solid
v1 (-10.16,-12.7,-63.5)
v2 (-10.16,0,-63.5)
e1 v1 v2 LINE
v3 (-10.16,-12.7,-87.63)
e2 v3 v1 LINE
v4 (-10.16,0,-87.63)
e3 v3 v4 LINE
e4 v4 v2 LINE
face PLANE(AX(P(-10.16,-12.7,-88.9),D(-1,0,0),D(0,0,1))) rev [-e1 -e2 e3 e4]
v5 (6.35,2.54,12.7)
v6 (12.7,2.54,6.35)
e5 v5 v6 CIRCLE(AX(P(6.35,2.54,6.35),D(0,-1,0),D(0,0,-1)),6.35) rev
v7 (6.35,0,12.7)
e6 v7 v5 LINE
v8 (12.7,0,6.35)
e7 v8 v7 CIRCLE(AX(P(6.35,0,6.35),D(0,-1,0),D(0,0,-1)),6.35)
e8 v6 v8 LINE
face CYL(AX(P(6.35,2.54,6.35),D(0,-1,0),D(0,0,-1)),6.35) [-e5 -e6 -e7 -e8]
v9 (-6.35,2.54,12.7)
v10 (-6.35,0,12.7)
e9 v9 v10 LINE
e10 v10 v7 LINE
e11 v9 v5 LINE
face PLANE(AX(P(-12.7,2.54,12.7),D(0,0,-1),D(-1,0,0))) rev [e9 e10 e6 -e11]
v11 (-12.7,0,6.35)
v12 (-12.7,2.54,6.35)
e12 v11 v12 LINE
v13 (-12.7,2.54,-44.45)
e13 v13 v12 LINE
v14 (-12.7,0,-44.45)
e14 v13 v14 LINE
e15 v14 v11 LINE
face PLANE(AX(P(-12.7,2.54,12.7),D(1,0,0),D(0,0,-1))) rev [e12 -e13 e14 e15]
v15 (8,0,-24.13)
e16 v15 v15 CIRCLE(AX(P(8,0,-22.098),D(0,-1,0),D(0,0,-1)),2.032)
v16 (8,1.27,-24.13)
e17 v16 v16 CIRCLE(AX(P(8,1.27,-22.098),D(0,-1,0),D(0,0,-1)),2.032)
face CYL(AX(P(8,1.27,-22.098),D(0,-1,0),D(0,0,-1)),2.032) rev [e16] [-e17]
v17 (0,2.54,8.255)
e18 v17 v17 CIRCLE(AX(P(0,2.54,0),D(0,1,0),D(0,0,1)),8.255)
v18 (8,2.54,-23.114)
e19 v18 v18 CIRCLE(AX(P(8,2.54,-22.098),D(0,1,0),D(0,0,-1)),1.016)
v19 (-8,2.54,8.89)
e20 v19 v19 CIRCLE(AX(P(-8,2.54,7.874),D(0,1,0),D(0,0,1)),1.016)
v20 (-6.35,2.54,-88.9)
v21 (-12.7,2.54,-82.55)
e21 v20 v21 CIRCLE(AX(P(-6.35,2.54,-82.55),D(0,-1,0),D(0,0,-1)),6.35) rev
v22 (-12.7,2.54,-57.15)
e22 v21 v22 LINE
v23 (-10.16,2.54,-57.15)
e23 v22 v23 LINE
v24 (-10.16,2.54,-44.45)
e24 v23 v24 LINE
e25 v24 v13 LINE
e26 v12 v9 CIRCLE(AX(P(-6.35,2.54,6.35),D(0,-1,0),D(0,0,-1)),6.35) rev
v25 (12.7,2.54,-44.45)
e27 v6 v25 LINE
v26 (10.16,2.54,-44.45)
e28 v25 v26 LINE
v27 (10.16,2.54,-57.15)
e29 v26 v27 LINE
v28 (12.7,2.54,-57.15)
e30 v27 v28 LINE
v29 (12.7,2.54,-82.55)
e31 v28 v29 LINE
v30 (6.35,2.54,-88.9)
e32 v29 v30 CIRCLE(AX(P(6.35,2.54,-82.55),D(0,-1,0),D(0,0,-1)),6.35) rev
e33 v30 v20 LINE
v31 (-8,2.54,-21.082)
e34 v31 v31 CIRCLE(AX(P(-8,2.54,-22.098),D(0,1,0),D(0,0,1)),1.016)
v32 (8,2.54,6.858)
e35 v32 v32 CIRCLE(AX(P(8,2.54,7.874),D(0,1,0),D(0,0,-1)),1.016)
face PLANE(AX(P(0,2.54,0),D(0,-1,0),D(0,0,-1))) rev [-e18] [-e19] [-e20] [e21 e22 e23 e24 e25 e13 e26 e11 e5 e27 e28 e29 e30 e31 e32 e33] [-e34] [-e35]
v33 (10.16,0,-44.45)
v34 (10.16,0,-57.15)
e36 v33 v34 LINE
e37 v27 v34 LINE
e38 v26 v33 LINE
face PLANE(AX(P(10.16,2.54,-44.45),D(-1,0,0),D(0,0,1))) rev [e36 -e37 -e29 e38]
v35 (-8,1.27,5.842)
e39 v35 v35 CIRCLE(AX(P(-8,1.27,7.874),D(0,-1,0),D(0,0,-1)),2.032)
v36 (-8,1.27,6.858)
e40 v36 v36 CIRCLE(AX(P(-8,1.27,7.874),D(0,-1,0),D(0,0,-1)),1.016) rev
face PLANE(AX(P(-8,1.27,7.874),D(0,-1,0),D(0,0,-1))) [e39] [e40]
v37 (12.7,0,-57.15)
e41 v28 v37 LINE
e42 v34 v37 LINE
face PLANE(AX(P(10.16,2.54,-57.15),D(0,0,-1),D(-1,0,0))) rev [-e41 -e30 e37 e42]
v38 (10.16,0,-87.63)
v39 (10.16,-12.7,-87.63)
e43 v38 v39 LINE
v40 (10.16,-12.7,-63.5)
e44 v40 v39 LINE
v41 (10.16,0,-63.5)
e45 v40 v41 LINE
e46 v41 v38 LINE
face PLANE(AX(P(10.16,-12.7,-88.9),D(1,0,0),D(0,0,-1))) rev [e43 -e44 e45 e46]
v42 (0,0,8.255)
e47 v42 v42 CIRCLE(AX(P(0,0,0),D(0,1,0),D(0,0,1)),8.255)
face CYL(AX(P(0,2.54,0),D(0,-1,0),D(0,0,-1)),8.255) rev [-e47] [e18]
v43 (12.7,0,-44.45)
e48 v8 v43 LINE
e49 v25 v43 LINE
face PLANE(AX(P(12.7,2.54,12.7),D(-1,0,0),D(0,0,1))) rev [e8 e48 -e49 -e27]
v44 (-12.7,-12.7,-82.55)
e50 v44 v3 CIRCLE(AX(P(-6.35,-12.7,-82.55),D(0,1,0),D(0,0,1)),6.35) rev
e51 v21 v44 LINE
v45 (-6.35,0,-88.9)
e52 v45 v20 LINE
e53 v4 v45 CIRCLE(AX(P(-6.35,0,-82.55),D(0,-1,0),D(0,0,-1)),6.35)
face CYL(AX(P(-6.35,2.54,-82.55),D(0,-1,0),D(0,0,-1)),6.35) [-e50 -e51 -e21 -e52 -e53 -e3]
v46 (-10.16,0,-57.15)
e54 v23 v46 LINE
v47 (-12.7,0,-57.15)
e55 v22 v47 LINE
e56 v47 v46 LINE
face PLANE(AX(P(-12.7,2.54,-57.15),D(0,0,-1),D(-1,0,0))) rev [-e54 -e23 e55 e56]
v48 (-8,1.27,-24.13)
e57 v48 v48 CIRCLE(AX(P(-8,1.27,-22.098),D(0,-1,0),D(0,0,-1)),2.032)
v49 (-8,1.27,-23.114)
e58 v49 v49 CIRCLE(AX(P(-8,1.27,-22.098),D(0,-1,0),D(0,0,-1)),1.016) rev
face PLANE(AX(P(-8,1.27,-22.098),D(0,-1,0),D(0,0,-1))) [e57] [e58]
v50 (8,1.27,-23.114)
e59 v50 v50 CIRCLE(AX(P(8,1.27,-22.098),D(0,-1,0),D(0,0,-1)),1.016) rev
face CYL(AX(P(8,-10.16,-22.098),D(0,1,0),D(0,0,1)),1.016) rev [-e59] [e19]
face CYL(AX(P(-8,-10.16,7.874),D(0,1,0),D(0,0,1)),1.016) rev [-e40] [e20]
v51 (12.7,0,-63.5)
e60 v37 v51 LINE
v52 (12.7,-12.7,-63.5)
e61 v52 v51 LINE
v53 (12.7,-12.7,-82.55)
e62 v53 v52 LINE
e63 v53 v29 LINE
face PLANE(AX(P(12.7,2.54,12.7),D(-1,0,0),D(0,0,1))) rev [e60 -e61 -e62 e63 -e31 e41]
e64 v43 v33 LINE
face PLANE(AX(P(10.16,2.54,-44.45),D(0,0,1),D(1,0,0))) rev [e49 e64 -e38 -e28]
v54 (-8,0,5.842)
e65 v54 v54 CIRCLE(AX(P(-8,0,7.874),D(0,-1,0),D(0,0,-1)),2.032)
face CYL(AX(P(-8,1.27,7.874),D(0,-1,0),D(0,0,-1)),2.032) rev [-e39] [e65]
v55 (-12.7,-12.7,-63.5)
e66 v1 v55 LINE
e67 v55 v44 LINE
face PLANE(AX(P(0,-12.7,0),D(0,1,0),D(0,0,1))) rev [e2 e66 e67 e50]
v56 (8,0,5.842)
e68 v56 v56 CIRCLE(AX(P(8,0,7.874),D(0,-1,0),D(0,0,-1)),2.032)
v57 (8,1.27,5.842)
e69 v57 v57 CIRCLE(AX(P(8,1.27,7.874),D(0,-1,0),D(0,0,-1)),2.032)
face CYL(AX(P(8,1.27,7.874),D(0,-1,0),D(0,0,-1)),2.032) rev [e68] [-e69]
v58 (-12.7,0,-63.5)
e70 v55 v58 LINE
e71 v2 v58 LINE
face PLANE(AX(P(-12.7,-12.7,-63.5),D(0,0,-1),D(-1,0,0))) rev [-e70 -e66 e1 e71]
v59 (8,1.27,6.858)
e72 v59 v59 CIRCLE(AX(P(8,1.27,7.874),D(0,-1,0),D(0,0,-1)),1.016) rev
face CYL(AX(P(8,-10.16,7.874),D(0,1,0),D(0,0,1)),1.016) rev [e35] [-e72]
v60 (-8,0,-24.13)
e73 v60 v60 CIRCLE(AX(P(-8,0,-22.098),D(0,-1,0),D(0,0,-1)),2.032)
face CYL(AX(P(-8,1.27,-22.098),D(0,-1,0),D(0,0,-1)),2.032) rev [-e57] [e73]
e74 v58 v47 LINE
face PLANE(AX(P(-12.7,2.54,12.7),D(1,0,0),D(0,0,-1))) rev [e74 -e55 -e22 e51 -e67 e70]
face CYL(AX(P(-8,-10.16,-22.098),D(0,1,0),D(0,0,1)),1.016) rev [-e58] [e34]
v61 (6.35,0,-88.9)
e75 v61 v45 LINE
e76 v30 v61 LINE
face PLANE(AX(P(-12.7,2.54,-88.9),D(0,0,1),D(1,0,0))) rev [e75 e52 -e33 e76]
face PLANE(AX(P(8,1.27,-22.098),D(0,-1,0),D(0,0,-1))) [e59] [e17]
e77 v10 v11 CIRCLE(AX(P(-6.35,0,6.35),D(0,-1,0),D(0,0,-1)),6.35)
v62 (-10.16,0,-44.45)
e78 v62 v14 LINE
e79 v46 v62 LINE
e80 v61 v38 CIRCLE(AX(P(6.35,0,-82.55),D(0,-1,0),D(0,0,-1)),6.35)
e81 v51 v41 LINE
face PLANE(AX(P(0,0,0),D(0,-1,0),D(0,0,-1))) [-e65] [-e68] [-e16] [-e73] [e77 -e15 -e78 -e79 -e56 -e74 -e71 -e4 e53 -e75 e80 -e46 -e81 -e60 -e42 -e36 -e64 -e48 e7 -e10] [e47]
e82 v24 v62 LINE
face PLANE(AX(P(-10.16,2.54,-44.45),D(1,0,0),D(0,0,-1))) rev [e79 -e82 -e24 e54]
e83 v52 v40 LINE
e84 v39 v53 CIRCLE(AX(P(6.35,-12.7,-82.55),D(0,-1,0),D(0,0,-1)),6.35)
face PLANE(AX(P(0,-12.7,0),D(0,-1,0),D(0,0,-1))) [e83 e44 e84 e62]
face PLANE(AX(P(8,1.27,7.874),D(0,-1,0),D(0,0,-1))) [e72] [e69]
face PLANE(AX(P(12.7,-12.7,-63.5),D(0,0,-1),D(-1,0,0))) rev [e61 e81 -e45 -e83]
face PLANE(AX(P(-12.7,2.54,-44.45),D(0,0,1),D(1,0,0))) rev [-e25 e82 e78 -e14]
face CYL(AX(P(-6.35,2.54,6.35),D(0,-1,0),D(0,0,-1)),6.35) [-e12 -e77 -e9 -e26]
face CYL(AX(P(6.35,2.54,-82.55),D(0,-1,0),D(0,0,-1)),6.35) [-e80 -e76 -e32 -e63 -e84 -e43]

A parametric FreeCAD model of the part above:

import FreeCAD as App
import Part
import Sketcher
from FreeCAD import Vector
Q = App.Units.Quantity


def edges_at(feature, points):
    """Names of the edges that pass closest to the given points."""
    edges = feature.Shape.Edges
    near = lambda p: min(range(len(edges)), key=lambda i: edges[i].distToShape(Part.Vertex(*p))[0])
    return sorted({f"Edge{near(p) + 1}" for p in points})


def add_polygon(sketch, points):
    """Adds a closed chain of lines whose ends are joined by coincident constraints."""
    first, n = sketch.GeometryCount, len(points)
    for a, b in zip(points, points[1:] + points[:1]):
        sketch.addGeometry(Part.LineSegment(App.Vector(*a, 0), App.Vector(*b, 0)), False)
    for i in range(n):
        sketch.addConstraint(Sketcher.Constraint("Coincident", first + i, 2, first + (i + 1) % n, 1))

doc = App.newDocument("Part")
body = doc.addObject("PartDesign::Body", "Body")

sketch1 = doc.addObject("Sketcher::SketchObject", "Sketch")
body.addObject(sketch1)
sketch1.AttachmentSupport = (doc.XZ_Plane, [""])
sketch1.MapMode = "FlatFace"
add_polygon(sketch1, [(-13, -89), (-13, 13), (13, 13), (13, -89)])
sketch1.addGeometry(Part.Circle(Vector(0, 0, 0), Vector(0, 0, 1), 8), False)
sketch1.addConstraint(Sketcher.Constraint("Vertical", 0))
sketch1.addConstraint(Sketcher.Constraint("Horizontal", 1))
sketch1.addConstraint(Sketcher.Constraint("Vertical", 2))
sketch1.addConstraint(Sketcher.Constraint("Horizontal", 3))
sketch1.addConstraint(Sketcher.Constraint("Coincident", 4, 3, -1, 1))
sketch1.addConstraint(Sketcher.Constraint("Diameter", 4, Q("0.65 in")))
sketch1.addConstraint(Sketcher.Constraint("DistanceX", 1, 1, 1, 2, Q("1 in")))
sketch1.addConstraint(Sketcher.Constraint("DistanceY", 0, 1, 0, 2, Q("4 in")))
sketch1.addConstraint(Sketcher.Constraint("DistanceX", 0, 2, -1, 1, Q("0.5 in")))
sketch1.addConstraint(Sketcher.Constraint("DistanceY", -1, 1, 0, 2, Q("0.5 in")))
pad1 = doc.addObject("PartDesign::Pad", "Pad")
body.addObject(pad1)
pad1.Profile = sketch1
pad1.Length = Q("0.1 in")
pad1.Reversed = True

sketch2 = doc.addObject("Sketcher::SketchObject", "Sketch001")
body.addObject(sketch2)
sketch2.AttachmentSupport = (doc.XZ_Plane, [""])
sketch2.MapMode = "FlatFace"
add_polygon(sketch2, [(-12.7, -63.5), (-12.7, -88.9), (-10.2, -88.9), (-10.2, -63.5)])
add_polygon(sketch2, [(10.2, -63.5), (10.2, -88.9), (12.7, -88.9), (12.7, -63.5)])
sketch2.addConstraint(Sketcher.Constraint("Vertical", 0))
sketch2.addConstraint(Sketcher.Constraint("Horizontal", 1))
sketch2.addConstraint(Sketcher.Constraint("Vertical", 2))
sketch2.addConstraint(Sketcher.Constraint("Horizontal", 3))
sketch2.addConstraint(Sketcher.Constraint("Vertical", 4))
sketch2.addConstraint(Sketcher.Constraint("Horizontal", 5))
sketch2.addConstraint(Sketcher.Constraint("Vertical", 6))
sketch2.addConstraint(Sketcher.Constraint("Horizontal", 7))
sketch2.addConstraint(Sketcher.Constraint("Symmetric", 1, 2, 4, 2, -2))
sketch2.addConstraint(Sketcher.Constraint("Symmetric", 3, 2, 6, 2, -2))
sketch2.addConstraint(Sketcher.Constraint("DistanceY", 0, 2, 0, 1, Q("1 in")))
sketch2.addConstraint(Sketcher.Constraint("DistanceX", 1, 1, 1, 2, Q("0.1 in")))
sketch2.addConstraint(Sketcher.Constraint("DistanceX", 0, 2, 5, 2, Q("1 in")))
sketch2.addConstraint(Sketcher.Constraint("DistanceY", 0, 2, -1, 1, Q("3.5 in")))
pad2 = doc.addObject("PartDesign::Pad", "Pad001")
body.addObject(pad2)
pad2.Profile = sketch2
pad2.Length = Q("0.5 in")

sketch3 = doc.addObject("Sketcher::SketchObject", "Sketch002")
body.addObject(sketch3)
sketch3.AttachmentSupport = (doc.XZ_Plane, [""])
sketch3.MapMode = "FlatFace"
sketch3.AttachmentOffset = App.Placement(Vector(0, 0, -0.1 * 25.4), App.Rotation())
sketch3.addGeometry(Part.Circle(Vector(-8, -22.1, 0), Vector(0, 0, 1), 1), False)
sketch3.addGeometry(Part.Circle(Vector(8, -22.1, 0), Vector(0, 0, 1), 1), False)
sketch3.addGeometry(Part.Circle(Vector(-8, 7.9, 0), Vector(0, 0, 1), 1), False)
sketch3.addGeometry(Part.Circle(Vector(8, 7.9, 0), Vector(0, 0, 1), 1), False)
sketch3.addConstraint(Sketcher.Constraint("Equal", 0, 1))
sketch3.addConstraint(Sketcher.Constraint("Equal", 1, 2))
sketch3.addConstraint(Sketcher.Constraint("Equal", 2, 3))
sketch3.addConstraint(Sketcher.Constraint("Symmetric", 0, 3, 1, 3, -2))
sketch3.addConstraint(Sketcher.Constraint("Symmetric", 2, 3, 3, 3, -2))
sketch3.addConstraint(Sketcher.Constraint("Vertical", 0, 3, 2, 3))
sketch3.addConstraint(Sketcher.Constraint("Diameter", 0, Q("0.08 in")))
sketch3.addConstraint(Sketcher.Constraint("DistanceY", 0, 3, -1, 1, Q("0.87 in")))
sketch3.addConstraint(Sketcher.Constraint("DistanceY", -1, 1, 2, 3, Q("0.31 in")))
sketch3.addConstraint(Sketcher.Constraint("DistanceX", 0, 3, -1, 1, Q("8 mm")))
pocket1 = doc.addObject("PartDesign::Pocket", "Pocket")
body.addObject(pocket1)
pocket1.Profile = sketch3
pocket1.Length = Q("0.5 in")
pocket1.Reversed = True
doc.recompute()

fillet = doc.addObject("PartDesign::Fillet", "Fillet")
body.addObject(fillet)
fillet.Base = (pocket1, edges_at(pocket1, [
    (12.7, 1.27, 12.7),
    (-12.7, 1.27, 12.7),
    (12.7, -5.08, -88.9),
    (-12.7, -5.08, -88.9),
]))
fillet.Radius = Q("0.25 in")

sketch4 = doc.addObject("Sketcher::SketchObject", "Sketch003")
body.addObject(sketch4)
sketch4.AttachmentSupport = (doc.XZ_Plane, [""])
sketch4.MapMode = "FlatFace"
sketch4.addGeometry(Part.Circle(Vector(-8, -22.1, 0), Vector(0, 0, 1), 2), False)
sketch4.addGeometry(Part.Circle(Vector(-8, 7.9, 0), Vector(0, 0, 1), 2), False)
sketch4.addGeometry(Part.Circle(Vector(8, -22.1, 0), Vector(0, 0, 1), 2), False)
sketch4.addGeometry(Part.Circle(Vector(8, 7.9, 0), Vector(0, 0, 1), 2), False)
sketch4.addConstraint(Sketcher.Constraint("Equal", 0, 1))
sketch4.addConstraint(Sketcher.Constraint("Equal", 1, 2))
sketch4.addConstraint(Sketcher.Constraint("Equal", 2, 3))
sketch4.addConstraint(Sketcher.Constraint("Symmetric", 0, 3, 2, 3, -2))
sketch4.addConstraint(Sketcher.Constraint("Symmetric", 1, 3, 3, 3, -2))
sketch4.addConstraint(Sketcher.Constraint("Vertical", 0, 3, 1, 3))
sketch4.addConstraint(Sketcher.Constraint("Diameter", 0, Q("0.16 in")))
sketch4.addConstraint(Sketcher.Constraint("DistanceY", 0, 3, -1, 1, Q("0.87 in")))
sketch4.addConstraint(Sketcher.Constraint("DistanceY", -1, 1, 1, 3, Q("0.31 in")))
sketch4.addConstraint(Sketcher.Constraint("DistanceX", 0, 3, -1, 1, Q("8 mm")))
pocket2 = doc.addObject("PartDesign::Pocket", "Pocket001")
body.addObject(pocket2)
pocket2.Profile = sketch4
pocket2.Length = Q("0.05 in")

sketch5 = doc.addObject("Sketcher::SketchObject", "Sketch004")
body.addObject(sketch5)
sketch5.AttachmentSupport = (doc.XZ_Plane, [""])
sketch5.MapMode = "FlatFace"
add_polygon(sketch5, [(10.2, -44.5), (10.2, -57.1), (12.7, -57.1), (12.7, -44.5)])
add_polygon(sketch5, [(-12.7, -44.5), (-12.7, -57.1), (-10.2, -57.1), (-10.2, -44.5)])
sketch5.addConstraint(Sketcher.Constraint("Vertical", 0))
sketch5.addConstraint(Sketcher.Constraint("Horizontal", 1))
sketch5.addConstraint(Sketcher.Constraint("Vertical", 2))
sketch5.addConstraint(Sketcher.Constraint("Horizontal", 3))
sketch5.addConstraint(Sketcher.Constraint("Vertical", 4))
sketch5.addConstraint(Sketcher.Constraint("Horizontal", 5))
sketch5.addConstraint(Sketcher.Constraint("Vertical", 6))
sketch5.addConstraint(Sketcher.Constraint("Horizontal", 7))
sketch5.addConstraint(Sketcher.Constraint("Symmetric", 1, 2, 4, 2, -2))
sketch5.addConstraint(Sketcher.Constraint("Symmetric", 3, 2, 6, 2, -2))
sketch5.addConstraint(Sketcher.Constraint("DistanceX", 1, 1, 1, 2, Q("0.1 in")))
sketch5.addConstraint(Sketcher.Constraint("DistanceY", 0, 2, 0, 1, Q("0.5 in")))
sketch5.addConstraint(Sketcher.Constraint("DistanceX", 4, 2, 1, 2, Q("1 in")))
sketch5.addConstraint(Sketcher.Constraint("DistanceY", 0, 2, -1, 1, Q("2.25 in")))
pocket3 = doc.addObject("PartDesign::Pocket", "Pocket002")
body.addObject(pocket3)
pocket3.Profile = sketch5
pocket3.Type = "ThroughAll"

doc.recompute()
